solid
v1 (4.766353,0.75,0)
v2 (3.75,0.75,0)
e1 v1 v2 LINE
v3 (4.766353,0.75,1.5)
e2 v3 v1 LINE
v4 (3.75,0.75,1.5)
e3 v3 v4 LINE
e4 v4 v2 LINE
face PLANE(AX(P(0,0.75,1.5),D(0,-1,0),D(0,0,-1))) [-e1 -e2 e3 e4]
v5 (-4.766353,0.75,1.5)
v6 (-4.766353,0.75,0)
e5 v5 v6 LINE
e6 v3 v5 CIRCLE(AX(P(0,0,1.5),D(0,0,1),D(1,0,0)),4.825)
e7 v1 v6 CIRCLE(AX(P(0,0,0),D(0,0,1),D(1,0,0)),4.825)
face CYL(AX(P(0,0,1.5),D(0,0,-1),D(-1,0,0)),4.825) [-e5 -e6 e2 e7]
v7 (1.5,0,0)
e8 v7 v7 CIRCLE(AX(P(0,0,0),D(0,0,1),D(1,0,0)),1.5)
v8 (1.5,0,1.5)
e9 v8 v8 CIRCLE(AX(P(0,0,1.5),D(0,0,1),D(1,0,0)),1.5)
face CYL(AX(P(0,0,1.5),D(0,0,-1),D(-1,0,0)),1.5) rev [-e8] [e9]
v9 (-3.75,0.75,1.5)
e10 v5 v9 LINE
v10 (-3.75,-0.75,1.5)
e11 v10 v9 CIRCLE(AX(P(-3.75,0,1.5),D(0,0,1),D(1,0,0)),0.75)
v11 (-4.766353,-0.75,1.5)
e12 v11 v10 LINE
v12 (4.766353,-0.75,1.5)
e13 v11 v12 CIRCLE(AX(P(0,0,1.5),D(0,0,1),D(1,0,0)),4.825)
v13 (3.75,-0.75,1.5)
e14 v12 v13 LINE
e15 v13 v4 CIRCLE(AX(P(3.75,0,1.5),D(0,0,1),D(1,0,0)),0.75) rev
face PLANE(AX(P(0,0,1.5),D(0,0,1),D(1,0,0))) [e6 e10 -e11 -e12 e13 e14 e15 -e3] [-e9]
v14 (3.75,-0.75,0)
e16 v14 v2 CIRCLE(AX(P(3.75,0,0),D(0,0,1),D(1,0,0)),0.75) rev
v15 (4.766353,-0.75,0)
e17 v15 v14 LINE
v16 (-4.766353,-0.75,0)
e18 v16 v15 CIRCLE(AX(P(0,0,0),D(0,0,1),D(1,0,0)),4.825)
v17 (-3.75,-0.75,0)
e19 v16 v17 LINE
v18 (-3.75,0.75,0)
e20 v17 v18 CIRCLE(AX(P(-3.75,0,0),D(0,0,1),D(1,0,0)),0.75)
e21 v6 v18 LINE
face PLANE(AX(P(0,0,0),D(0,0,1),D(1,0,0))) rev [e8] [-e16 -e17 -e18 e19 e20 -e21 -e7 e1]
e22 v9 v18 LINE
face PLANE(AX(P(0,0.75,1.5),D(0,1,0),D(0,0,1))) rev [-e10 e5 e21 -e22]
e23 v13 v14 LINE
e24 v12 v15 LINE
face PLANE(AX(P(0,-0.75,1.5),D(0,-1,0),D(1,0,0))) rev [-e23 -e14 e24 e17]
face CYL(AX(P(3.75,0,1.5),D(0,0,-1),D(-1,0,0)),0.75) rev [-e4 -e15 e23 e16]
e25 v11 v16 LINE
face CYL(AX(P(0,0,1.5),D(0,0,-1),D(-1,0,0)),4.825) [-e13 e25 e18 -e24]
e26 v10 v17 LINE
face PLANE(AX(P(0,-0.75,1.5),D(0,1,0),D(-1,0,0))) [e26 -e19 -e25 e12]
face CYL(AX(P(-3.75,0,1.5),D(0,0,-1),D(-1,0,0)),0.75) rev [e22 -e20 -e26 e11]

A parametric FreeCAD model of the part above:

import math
import FreeCAD as App
import Part
import Sketcher

V = App.Vector

doc = App.newDocument("Part")
params = doc.addObject("Spreadsheet::Sheet", "Params")
for row, (alias, value) in enumerate([
    ("sketch1_diameter", "3 mm"),
    ("sketch1_radius", "0.75 mm"),
    ("pad1_length", "1.5 mm"),
], start=1):
    params.set(f"A{row}", alias)
    params.set(f"B{row}", "=" + value)
    params.setAlias(f"B{row}", alias)

body = doc.addObject("PartDesign::Body", "Body")

sketch1 = body.newObject("Sketcher::SketchObject", "Sketch")
sketch1.AttachmentSupport = (doc.getObject("XY_Plane"), [""])
sketch1.MapMode = "FlatFace"
sketch1.addGeometry(Part.ArcOfCircle(Part.Circle(V(0, 0, 0), V(0, 0, 1), 4.825), math.radians(8.94234), math.radians(171.05766)), False)
sketch1.addGeometry(Part.LineSegment(V(-4.766353, 0.75, 0), V(-3.75, 0.75, 0)), False)
sketch1.addGeometry(Part.ArcOfCircle(Part.Circle(V(-3.75, 0, 0), V(0, 0, 1), 0.75), math.radians(-90), math.radians(90)), False)
sketch1.addGeometry(Part.LineSegment(V(-3.75, -0.75, 0), V(-4.766353, -0.75, 0)), False)
sketch1.addGeometry(Part.ArcOfCircle(Part.Circle(V(0, 0, 0), V(0, 0, 1), 4.825), math.radians(-171.05766), math.radians(-8.94234)), False)
sketch1.addGeometry(Part.LineSegment(V(4.766353, -0.75, 0), V(3.75, -0.75, 0)), False)
sketch1.addGeometry(Part.ArcOfCircle(Part.Circle(V(3.75, 0, 0), V(0, 0, 1), 0.75), math.radians(90), math.radians(270)), False)
sketch1.addGeometry(Part.LineSegment(V(3.75, 0.75, 0), V(4.766353, 0.75, 0)), False)
sketch1.addGeometry(Part.Circle(V(0, 0, 0), V(0, 0, 1), 1.5), False)
sketch1.addConstraint(Sketcher.Constraint("Coincident", 0, 2, 1, 1))
sketch1.addConstraint(Sketcher.Constraint("Tangent", 1, 2, 2, 2))
sketch1.addConstraint(Sketcher.Constraint("Tangent", 2, 1, 3, 1))
sketch1.addConstraint(Sketcher.Constraint("Coincident", 3, 2, 4, 1))
sketch1.addConstraint(Sketcher.Constraint("Coincident", 4, 2, 5, 1))
sketch1.addConstraint(Sketcher.Constraint("Tangent", 5, 2, 6, 2))
sketch1.addConstraint(Sketcher.Constraint("Tangent", 6, 1, 7, 1))
sketch1.addConstraint(Sketcher.Constraint("Coincident", 7, 2, 0, 1))
sketch1.addConstraint(Sketcher.Constraint("Horizontal", 1))
sketch1.addConstraint(Sketcher.Constraint("Horizontal", 3))
sketch1.addConstraint(Sketcher.Constraint("Horizontal", 5))
sketch1.addConstraint(Sketcher.Constraint("Horizontal", 7))
sketch1.addConstraint(Sketcher.Constraint("Coincident", 0, 3, -1, 1))
sketch1.addConstraint(Sketcher.Constraint("Coincident", 4, 3, -1, 1))
sketch1.addConstraint(Sketcher.Constraint("Coincident", 8, 3, -1, 1))
sketch1.addConstraint(Sketcher.Constraint("Equal", 0, 4))
sketch1.addConstraint(Sketcher.Constraint("Equal", 2, 6))
sketch1.addConstraint(Sketcher.Constraint("Symmetric", 2, 3, 6, 3, -1, 1))
sketch1.addConstraint(Sketcher.Constraint("PointOnObject", 2, 3, -1))
sketch1.addConstraint(Sketcher.Constraint("Diameter", 8, 3.0))
sketch1.addConstraint(Sketcher.Constraint("Radius", 2, 0.75))
sketch1.addConstraint(Sketcher.Constraint("Radius", 0, 4.825))
sketch1.addConstraint(Sketcher.Constraint("DistanceX", 2, 3, 6, 3, 7.5))
sketch1.setExpression("Constraints[19]", "Params.sketch1_diameter")
sketch1.setExpression("Constraints[20]", "Params.sketch1_radius")
pad1 = body.newObject("PartDesign::Pad", "Pad")
pad1.Profile = sketch1
pad1.setExpression("Length", "Params.pad1_length")

doc.recompute()
